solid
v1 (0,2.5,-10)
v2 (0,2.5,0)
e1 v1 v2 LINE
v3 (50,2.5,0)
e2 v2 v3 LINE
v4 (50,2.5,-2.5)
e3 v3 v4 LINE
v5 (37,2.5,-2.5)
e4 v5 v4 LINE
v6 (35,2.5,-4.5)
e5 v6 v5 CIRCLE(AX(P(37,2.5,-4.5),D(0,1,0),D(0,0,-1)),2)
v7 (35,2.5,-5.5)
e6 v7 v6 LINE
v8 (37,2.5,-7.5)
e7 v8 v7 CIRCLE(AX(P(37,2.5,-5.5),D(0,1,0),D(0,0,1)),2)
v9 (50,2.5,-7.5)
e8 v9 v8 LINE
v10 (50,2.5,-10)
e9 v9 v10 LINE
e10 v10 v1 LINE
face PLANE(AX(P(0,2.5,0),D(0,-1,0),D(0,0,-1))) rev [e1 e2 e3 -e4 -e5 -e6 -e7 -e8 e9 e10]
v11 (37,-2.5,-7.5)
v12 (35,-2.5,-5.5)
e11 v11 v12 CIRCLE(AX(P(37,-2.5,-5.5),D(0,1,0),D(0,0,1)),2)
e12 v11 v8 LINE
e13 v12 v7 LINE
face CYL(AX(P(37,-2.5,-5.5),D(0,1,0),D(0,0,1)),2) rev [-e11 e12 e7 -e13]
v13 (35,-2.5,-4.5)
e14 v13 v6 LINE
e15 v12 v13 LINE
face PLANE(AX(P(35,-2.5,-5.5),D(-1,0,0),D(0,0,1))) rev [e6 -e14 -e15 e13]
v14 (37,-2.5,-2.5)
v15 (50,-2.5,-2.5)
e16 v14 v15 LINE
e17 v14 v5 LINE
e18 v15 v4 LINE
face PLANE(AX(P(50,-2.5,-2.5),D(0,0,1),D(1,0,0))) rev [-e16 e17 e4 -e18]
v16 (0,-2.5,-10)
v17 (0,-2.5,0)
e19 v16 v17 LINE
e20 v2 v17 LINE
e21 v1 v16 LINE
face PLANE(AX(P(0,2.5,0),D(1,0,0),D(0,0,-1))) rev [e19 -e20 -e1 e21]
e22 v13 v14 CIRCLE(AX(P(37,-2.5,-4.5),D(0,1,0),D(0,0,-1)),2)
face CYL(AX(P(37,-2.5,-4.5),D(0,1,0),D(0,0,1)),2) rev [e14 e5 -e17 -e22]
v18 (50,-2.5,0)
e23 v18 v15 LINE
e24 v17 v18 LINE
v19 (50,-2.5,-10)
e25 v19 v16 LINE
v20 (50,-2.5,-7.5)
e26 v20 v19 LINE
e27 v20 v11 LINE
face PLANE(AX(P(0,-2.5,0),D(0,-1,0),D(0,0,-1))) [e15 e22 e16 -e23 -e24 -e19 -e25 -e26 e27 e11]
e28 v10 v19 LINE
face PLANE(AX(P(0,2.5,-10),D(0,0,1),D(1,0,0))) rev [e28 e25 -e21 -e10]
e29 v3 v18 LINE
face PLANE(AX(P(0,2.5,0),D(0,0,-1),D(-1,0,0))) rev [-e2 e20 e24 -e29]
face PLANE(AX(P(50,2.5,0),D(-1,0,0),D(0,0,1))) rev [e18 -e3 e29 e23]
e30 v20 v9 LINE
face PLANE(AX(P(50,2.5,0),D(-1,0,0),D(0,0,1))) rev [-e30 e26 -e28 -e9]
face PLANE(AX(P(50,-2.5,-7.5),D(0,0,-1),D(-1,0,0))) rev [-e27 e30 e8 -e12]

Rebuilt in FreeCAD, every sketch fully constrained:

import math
import FreeCAD as App
import Part
import Sketcher
from FreeCAD import Vector


def add_polygon(sketch, points):
    """Adds a closed chain of lines whose ends are joined by coincident constraints."""
    first, n = sketch.GeometryCount, len(points)
    for a, b in zip(points, points[1:] + points[:1]):
        sketch.addGeometry(Part.LineSegment(App.Vector(*a, 0), App.Vector(*b, 0)), False)
    for i in range(n):
        sketch.addConstraint(Sketcher.Constraint("Coincident", first + i, 2, first + (i + 1) % n, 1))

doc = App.newDocument("Part")
body = doc.addObject("PartDesign::Body", "Body")

# Sketch on XZ plane
sketch1 = body.newObject("Sketcher::SketchObject", "Sketch")
sketch1.AttachmentSupport = (doc.getObject("XZ_Plane"), [""])
sketch1.MapMode = "FlatFace"
add_polygon(sketch1, [(0, -10), (0, 0), (50, 0), (50, -10)])  # lines 0-3
sketch1.addConstraint([
    Sketcher.Constraint("Vertical", 0),
    Sketcher.Constraint("Horizontal", 1),
    Sketcher.Constraint("Vertical", 2),
    Sketcher.Constraint("Horizontal", 3),
    Sketcher.Constraint("Coincident", 0, 2, -1, 1),
    Sketcher.Constraint("DistanceX", 1, 1, 1, 2, 50.0),
    Sketcher.Constraint("DistanceY", 0, 1, 0, 2, 10.0),
])
pad1 = body.newObject("PartDesign::Pad", "Pad")
pad1.Profile = sketch1
pad1.Length = 5
pad1.Midplane = True

# Sketch on XZ plane
sketch2 = body.newObject("Sketcher::SketchObject", "Sketch001")
sketch2.AttachmentSupport = (doc.getObject("XZ_Plane"), [""])
sketch2.MapMode = "FlatFace"
sketch2.AttachmentOffset = App.Placement(Vector(0, 0, -2.5), App.Rotation())
sketch2.addGeometry([
    Part.LineSegment(Vector(50, -7.5, 0), Vector(37, -7.5, 0)),  # 0
    Part.ArcOfCircle(Part.Circle(Vector(37, -5.5, 0), Vector(0, 0, 1), 2), math.radians(-180), math.radians(-90)),  # 1
    Part.LineSegment(Vector(35, -5.5, 0), Vector(35, -4.5, 0)),  # 2
    Part.ArcOfCircle(Part.Circle(Vector(37, -4.5, 0), Vector(0, 0, 1), 2), math.radians(90), math.radians(180)),  # 3
    Part.LineSegment(Vector(37, -2.5, 0), Vector(50, -2.5, 0)),  # 4
    Part.LineSegment(Vector(50, -2.5, 0), Vector(50, -7.5, 0)),  # 5
], False)
sketch2.addConstraint([
    Sketcher.Constraint("Tangent", 0, 2, 1, 2),
    Sketcher.Constraint("Tangent", 1, 1, 2, 1),
    Sketcher.Constraint("Tangent", 2, 2, 3, 2),
    Sketcher.Constraint("Tangent", 3, 1, 4, 1),
    Sketcher.Constraint("Coincident", 4, 2, 5, 1),
    Sketcher.Constraint("Coincident", 5, 2, 0, 1),
    Sketcher.Constraint("Horizontal", 0),
    Sketcher.Constraint("Vertical", 2),
    Sketcher.Constraint("Horizontal", 4),
    Sketcher.Constraint("Vertical", 5),
    Sketcher.Constraint("Equal", 1, 3),
    Sketcher.Constraint("Radius", 1, 2.0),
    Sketcher.Constraint("DistanceX", 0, 2, 0, 1, 13.0),
    Sketcher.Constraint("DistanceY", 2, 1, 2, 2, 1.0),
    Sketcher.Constraint("DistanceX", -1, 1, 1, 3, 37.0),
    Sketcher.Constraint("DistanceY", 1, 3, -1, 1, 5.5),
])
pocket1 = body.newObject("PartDesign::Pocket", "Pocket")
pocket1.Profile = sketch2
pocket1.Type = "ThroughAll"
pocket1.Reversed = True

doc.recompute()
